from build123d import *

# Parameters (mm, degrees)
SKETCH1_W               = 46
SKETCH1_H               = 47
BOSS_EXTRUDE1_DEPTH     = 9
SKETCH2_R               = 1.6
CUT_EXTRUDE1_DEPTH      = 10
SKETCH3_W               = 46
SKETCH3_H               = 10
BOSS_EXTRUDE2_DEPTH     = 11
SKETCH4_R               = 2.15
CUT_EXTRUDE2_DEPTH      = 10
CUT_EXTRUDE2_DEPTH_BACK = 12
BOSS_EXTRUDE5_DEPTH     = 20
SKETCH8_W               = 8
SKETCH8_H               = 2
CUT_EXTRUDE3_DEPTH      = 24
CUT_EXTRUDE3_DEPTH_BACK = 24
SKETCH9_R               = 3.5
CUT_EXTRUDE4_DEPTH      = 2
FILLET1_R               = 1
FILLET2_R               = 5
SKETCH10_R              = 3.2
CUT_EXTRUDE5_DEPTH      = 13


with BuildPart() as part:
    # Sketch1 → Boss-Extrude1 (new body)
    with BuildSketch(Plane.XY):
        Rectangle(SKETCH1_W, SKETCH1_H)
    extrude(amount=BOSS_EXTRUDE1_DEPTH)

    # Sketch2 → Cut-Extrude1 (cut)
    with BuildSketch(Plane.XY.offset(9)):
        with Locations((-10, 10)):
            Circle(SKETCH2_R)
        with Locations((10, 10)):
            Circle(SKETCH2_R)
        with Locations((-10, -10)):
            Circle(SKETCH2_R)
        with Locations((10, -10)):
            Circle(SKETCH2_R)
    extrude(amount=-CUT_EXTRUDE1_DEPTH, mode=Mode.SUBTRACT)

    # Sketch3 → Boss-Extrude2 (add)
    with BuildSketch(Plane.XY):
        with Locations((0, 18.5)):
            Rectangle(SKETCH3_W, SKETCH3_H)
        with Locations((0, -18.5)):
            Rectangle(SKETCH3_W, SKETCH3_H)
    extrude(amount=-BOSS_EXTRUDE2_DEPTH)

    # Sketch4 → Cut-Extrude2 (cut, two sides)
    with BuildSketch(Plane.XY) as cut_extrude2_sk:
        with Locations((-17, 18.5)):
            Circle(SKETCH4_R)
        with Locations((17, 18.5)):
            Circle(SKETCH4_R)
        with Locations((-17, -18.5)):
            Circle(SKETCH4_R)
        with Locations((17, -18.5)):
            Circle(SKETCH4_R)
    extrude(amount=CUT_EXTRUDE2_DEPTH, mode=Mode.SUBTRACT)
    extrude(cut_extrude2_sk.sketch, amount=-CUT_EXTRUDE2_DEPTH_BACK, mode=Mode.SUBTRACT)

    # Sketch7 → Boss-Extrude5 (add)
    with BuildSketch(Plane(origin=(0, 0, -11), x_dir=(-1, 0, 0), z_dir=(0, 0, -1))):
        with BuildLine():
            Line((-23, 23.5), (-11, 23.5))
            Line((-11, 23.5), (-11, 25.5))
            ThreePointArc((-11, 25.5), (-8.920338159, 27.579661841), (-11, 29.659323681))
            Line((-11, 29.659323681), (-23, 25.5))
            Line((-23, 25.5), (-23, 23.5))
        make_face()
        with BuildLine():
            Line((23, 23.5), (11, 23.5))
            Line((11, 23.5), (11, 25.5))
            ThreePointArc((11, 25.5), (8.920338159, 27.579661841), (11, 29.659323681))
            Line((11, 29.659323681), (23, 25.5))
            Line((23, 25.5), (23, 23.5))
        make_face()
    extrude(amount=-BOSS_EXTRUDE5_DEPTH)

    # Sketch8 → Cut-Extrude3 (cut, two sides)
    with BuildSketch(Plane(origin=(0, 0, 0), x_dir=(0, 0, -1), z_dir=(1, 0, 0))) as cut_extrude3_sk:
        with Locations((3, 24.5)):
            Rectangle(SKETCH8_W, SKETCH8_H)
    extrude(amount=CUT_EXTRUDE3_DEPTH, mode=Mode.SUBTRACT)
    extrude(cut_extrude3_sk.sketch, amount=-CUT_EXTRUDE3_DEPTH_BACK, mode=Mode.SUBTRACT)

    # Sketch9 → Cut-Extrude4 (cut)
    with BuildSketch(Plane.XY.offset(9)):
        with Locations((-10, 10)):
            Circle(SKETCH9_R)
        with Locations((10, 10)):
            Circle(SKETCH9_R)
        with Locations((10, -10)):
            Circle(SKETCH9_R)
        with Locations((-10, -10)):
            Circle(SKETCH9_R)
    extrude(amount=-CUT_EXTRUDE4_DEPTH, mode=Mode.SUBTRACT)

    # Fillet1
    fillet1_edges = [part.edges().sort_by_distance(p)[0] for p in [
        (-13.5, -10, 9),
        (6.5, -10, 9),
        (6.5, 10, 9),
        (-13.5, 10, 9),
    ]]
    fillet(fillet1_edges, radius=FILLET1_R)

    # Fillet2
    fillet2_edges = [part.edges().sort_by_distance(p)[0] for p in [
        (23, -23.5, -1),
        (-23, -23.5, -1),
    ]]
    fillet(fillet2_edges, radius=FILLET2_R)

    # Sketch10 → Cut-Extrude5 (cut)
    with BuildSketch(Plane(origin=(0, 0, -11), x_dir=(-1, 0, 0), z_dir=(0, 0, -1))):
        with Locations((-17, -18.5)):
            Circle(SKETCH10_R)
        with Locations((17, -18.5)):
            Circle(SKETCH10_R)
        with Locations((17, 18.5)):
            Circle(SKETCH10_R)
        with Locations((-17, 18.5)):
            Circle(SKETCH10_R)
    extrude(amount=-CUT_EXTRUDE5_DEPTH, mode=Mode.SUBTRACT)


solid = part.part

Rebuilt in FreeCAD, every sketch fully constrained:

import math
import FreeCAD as App
import Part
import Sketcher

V = App.Vector


def edges_at(feature, points):
    """Names of the edges that pass closest to the given points."""
    edges = feature.Shape.Edges
    near = lambda p: min(range(len(edges)), key=lambda i: edges[i].distToShape(Part.Vertex(*p))[0])
    return sorted({f"Edge{near(p) + 1}" for p in points})


def add_polygon(sketch, points):
    """Adds a closed chain of lines whose ends are joined by coincident constraints."""
    first, n = sketch.GeometryCount, len(points)
    for a, b in zip(points, points[1:] + points[:1]):
        sketch.addGeometry(Part.LineSegment(App.Vector(*a, 0), App.Vector(*b, 0)), False)
    for i in range(n):
        sketch.addConstraint(Sketcher.Constraint("Coincident", first + i, 2, first + (i + 1) % n, 1))

doc = App.newDocument("Part")
body = doc.addObject("PartDesign::Body", "Body")

sketch1 = body.newObject("Sketcher::SketchObject", "Sketch")
sketch1.AttachmentSupport = (doc.getObject("XY_Plane"), [""])
sketch1.MapMode = "FlatFace"
add_polygon(sketch1, [(-23, 24), (-23, -24), (23, -24), (23, 24)])
sketch1.addConstraint(Sketcher.Constraint("Vertical", 0))
sketch1.addConstraint(Sketcher.Constraint("Horizontal", 1))
sketch1.addConstraint(Sketcher.Constraint("Vertical", 2))
sketch1.addConstraint(Sketcher.Constraint("Horizontal", 3))
sketch1.addConstraint(Sketcher.Constraint("Symmetric", 0, 2, 2, 2, -1, 1))
sketch1.addConstraint(Sketcher.Constraint("DistanceX", 1, 1, 1, 2, 46.0))
sketch1.addConstraint(Sketcher.Constraint("DistanceY", 0, 2, 0, 1, 47.0))
pad1 = body.newObject("PartDesign::Pad", "Pad")
pad1.Profile = sketch1
pad1.Length = 9

sketch2 = body.newObject("Sketcher::SketchObject", "Sketch001")
sketch2.AttachmentSupport = (doc.getObject("XY_Plane"), [""])
sketch2.MapMode = "FlatFace"
sketch2.AttachmentOffset = App.Placement(V(0, 0, 9), App.Rotation())
sketch2.addGeometry(Part.Circle(V(-10, 10, 0), V(0, 0, 1), 1.6), False)
sketch2.addGeometry(Part.Circle(V(10, 10, 0), V(0, 0, 1), 1.6), False)
sketch2.addGeometry(Part.Circle(V(-10, -10, 0), V(0, 0, 1), 1.6), False)
sketch2.addGeometry(Part.Circle(V(10, -10, 0), V(0, 0, 1), 1.6), False)
sketch2.addConstraint(Sketcher.Constraint("Equal", 0, 1))
sketch2.addConstraint(Sketcher.Constraint("Equal", 1, 2))
sketch2.addConstraint(Sketcher.Constraint("Equal", 2, 3))
sketch2.addConstraint(Sketcher.Constraint("Symmetric", 1, 3, 2, 3, -1, 1))
sketch2.addConstraint(Sketcher.Constraint("Symmetric", 0, 3, 3, 3, -1, 1))
sketch2.addConstraint(Sketcher.Constraint("Symmetric", 0, 3, 1, 3, -2))
sketch2.addConstraint(Sketcher.Constraint("Diameter", 0, 3.2))
sketch2.addConstraint(Sketcher.Constraint("DistanceX", 0, 3, -1, 1, 10.0))
sketch2.addConstraint(Sketcher.Constraint("DistanceY", -1, 1, 0, 3, 10.0))
pocket1 = body.newObject("PartDesign::Pocket", "Pocket")
pocket1.Profile = sketch2
pocket1.Length = 10

sketch3 = body.newObject("Sketcher::SketchObject", "Sketch002")
sketch3.AttachmentSupport = (doc.getObject("XY_Plane"), [""])
sketch3.MapMode = "FlatFace"
add_polygon(sketch3, [(-23, 24), (-23, 14), (23, 14), (23, 24)])
add_polygon(sketch3, [(-23, -14), (-23, -24), (23, -24), (23, -14)])
sketch3.addConstraint(Sketcher.Constraint("Vertical", 0))
sketch3.addConstraint(Sketcher.Constraint("Horizontal", 1))
sketch3.addConstraint(Sketcher.Constraint("Vertical", 2))
sketch3.addConstraint(Sketcher.Constraint("Horizontal", 3))
sketch3.addConstraint(Sketcher.Constraint("Vertical", 4))
sketch3.addConstraint(Sketcher.Constraint("Horizontal", 5))
sketch3.addConstraint(Sketcher.Constraint("Vertical", 6))
sketch3.addConstraint(Sketcher.Constraint("Horizontal", 7))
sketch3.addConstraint(Sketcher.Constraint("Symmetric", 2, 2, 4, 2, -1, 1))
sketch3.addConstraint(Sketcher.Constraint("Symmetric", 0, 2, 6, 2, -1, 1))
sketch3.addConstraint(Sketcher.Constraint("Vertical", 3, 2, 4, 2))
sketch3.addConstraint(Sketcher.Constraint("DistanceX", 1, 1, 1, 2, 46.0))
sketch3.addConstraint(Sketcher.Constraint("DistanceY", 0, 2, 0, 1, 10.0))
sketch3.addConstraint(Sketcher.Constraint("DistanceY", 4, 2, 0, 2, 37.0))
pad2 = body.newObject("PartDesign::Pad", "Pad001")
pad2.Profile = sketch3
pad2.Length = 11
pad2.Reversed = True

sketch4 = body.newObject("Sketcher::SketchObject", "Sketch003")
sketch4.AttachmentSupport = (doc.getObject("XY_Plane"), [""])
sketch4.MapMode = "FlatFace"
sketch4.addGeometry(Part.Circle(V(-17, 18.5, 0), V(0, 0, 1), 2.1), False)
sketch4.addGeometry(Part.Circle(V(17, 18.5, 0), V(0, 0, 1), 2.1), False)
sketch4.addGeometry(Part.Circle(V(-17, -18.5, 0), V(0, 0, 1), 2.1), False)
sketch4.addGeometry(Part.Circle(V(17, -18.5, 0), V(0, 0, 1), 2.1), False)
sketch4.addConstraint(Sketcher.Constraint("Equal", 0, 1))
sketch4.addConstraint(Sketcher.Constraint("Equal", 1, 2))
sketch4.addConstraint(Sketcher.Constraint("Equal", 2, 3))
sketch4.addConstraint(Sketcher.Constraint("Symmetric", 1, 3, 2, 3, -1, 1))
sketch4.addConstraint(Sketcher.Constraint("Symmetric", 0, 3, 3, 3, -1, 1))
sketch4.addConstraint(Sketcher.Constraint("Symmetric", 0, 3, 1, 3, -2))
sketch4.addConstraint(Sketcher.Constraint("Diameter", 0, 4.3))
sketch4.addConstraint(Sketcher.Constraint("DistanceX", 0, 3, -1, 1, 17.0))
sketch4.addConstraint(Sketcher.Constraint("DistanceY", 2, 3, 0, 3, 37.0))
pocket2 = body.newObject("PartDesign::Pocket", "Pocket001")
pocket2.Profile = sketch4
pocket2.Type = "ThroughAll"
pocket2.Midplane = True

sketch5 = body.newObject("Sketcher::SketchObject", "Sketch004")
sketch5.AttachmentSupport = (doc.getObject("XY_Plane"), [""])
sketch5.MapMode = "FlatFace"
sketch5.AttachmentOffset = App.Placement(V(0, 0, -11), App.Rotation())
sketch5.addGeometry(Part.LineSegment(V(23, 23.5, 0), V(11, 23.5, 0)), False)
sketch5.addGeometry(Part.LineSegment(V(11, 23.5, 0), V(11, 25.5, 0)), False)
sketch5.addGeometry(Part.ArcOfCircle(Part.Circle(V(11, 27.6, 0), V(0, 0, 1), 2.1), math.radians(90), math.radians(270)), False)
sketch5.addGeometry(Part.LineSegment(V(11, 29.7, 0), V(23, 25.5, 0)), False)
sketch5.addGeometry(Part.LineSegment(V(23, 25.5, 0), V(23, 23.5, 0)), False)
sketch5.addGeometry(Part.LineSegment(V(-11, 23.5, 0), V(-23, 23.5, 0)), False)
sketch5.addGeometry(Part.LineSegment(V(-23, 23.5, 0), V(-23, 25.5, 0)), False)
sketch5.addGeometry(Part.LineSegment(V(-23, 25.5, 0), V(-11, 29.7, 0)), False)
sketch5.addGeometry(Part.ArcOfCircle(Part.Circle(V(-11, 27.6, 0), V(0, 0, 1), 2.1), math.radians(-90), math.radians(90)), False)
sketch5.addGeometry(Part.LineSegment(V(-11, 25.5, 0), V(-11, 23.5, 0)), False)
sketch5.addConstraint(Sketcher.Constraint("Coincident", 0, 2, 1, 1))
sketch5.addConstraint(Sketcher.Constraint("Coincident", 1, 2, 2, 2))
sketch5.addConstraint(Sketcher.Constraint("Coincident", 2, 1, 3, 1))
sketch5.addConstraint(Sketcher.Constraint("Coincident", 3, 2, 4, 1))
sketch5.addConstraint(Sketcher.Constraint("Coincident", 4, 2, 0, 1))
sketch5.addConstraint(Sketcher.Constraint("Coincident", 5, 2, 6, 1))
sketch5.addConstraint(Sketcher.Constraint("Coincident", 6, 2, 7, 1))
sketch5.addConstraint(Sketcher.Constraint("Coincident", 7, 2, 8, 2))
sketch5.addConstraint(Sketcher.Constraint("Coincident", 8, 1, 9, 1))
sketch5.addConstraint(Sketcher.Constraint("Coincident", 9, 2, 5, 1))
sketch5.addConstraint(Sketcher.Constraint("Horizontal", 0))
sketch5.addConstraint(Sketcher.Constraint("Vertical", 1))
sketch5.addConstraint(Sketcher.Constraint("Vertical", 4))
sketch5.addConstraint(Sketcher.Constraint("Horizontal", 5))
sketch5.addConstraint(Sketcher.Constraint("Vertical", 6))
sketch5.addConstraint(Sketcher.Constraint("Vertical", 9))
sketch5.addConstraint(Sketcher.Constraint("Equal", 2, 8))
sketch5.addConstraint(Sketcher.Constraint("Symmetric", 2, 3, 8, 3, -2))
sketch5.addConstraint(Sketcher.Constraint("Symmetric", 4, 2, 5, 2, -2))
sketch5.addConstraint(Sketcher.Constraint("Horizontal", 1, 2, 3, 2))
sketch5.addConstraint(Sketcher.Constraint("Horizontal", 3, 2, 6, 2))
sketch5.addConstraint(Sketcher.Constraint("Vertical", 2, 3, 0, 2))
sketch5.addConstraint(Sketcher.Constraint("Vertical", 1, 2, 2, 1))
sketch5.addConstraint(Sketcher.Constraint("Vertical", 8, 3, 7, 2))
sketch5.addConstraint(Sketcher.Constraint("Vertical", 7, 2, 8, 1))
sketch5.addConstraint(Sketcher.Constraint("DistanceX", 0, 2, 0, 1, 12.0))
sketch5.addConstraint(Sketcher.Constraint("DistanceY", 1, 1, 1, 2, 2.0))
sketch5.addConstraint(Sketcher.Constraint("DistanceX", -1, 1, 2, 3, 11.0))
sketch5.addConstraint(Sketcher.Constraint("DistanceY", -1, 1, 0, 2, 23.5))
sketch5.addConstraint(Sketcher.Constraint("Radius", 2, 2.079662))
pad3 = body.newObject("PartDesign::Pad", "Pad002")
pad3.Profile = sketch5
pad3.Length = 20

sketch6 = body.newObject("Sketcher::SketchObject", "Sketch005")
sketch6.AttachmentSupport = (doc.getObject("YZ_Plane"), [""])
sketch6.MapMode = "FlatFace"
add_polygon(sketch6, [(25.5, 1), (23.5, 1), (23.5, -7), (25.5, -7)])
sketch6.addConstraint(Sketcher.Constraint("Horizontal", 0))
sketch6.addConstraint(Sketcher.Constraint("Vertical", 1))
sketch6.addConstraint(Sketcher.Constraint("Horizontal", 2))
sketch6.addConstraint(Sketcher.Constraint("Vertical", 3))
sketch6.addConstraint(Sketcher.Constraint("DistanceX", 0, 2, 0, 1, 2.0))
sketch6.addConstraint(Sketcher.Constraint("DistanceY", 1, 2, 1, 1, 8.0))
sketch6.addConstraint(Sketcher.Constraint("DistanceY", -1, 1, 0, 2, 1.0))
sketch6.addConstraint(Sketcher.Constraint("DistanceX", -1, 1, 0, 2, 23.5))
pocket3 = body.newObject("PartDesign::Pocket", "Pocket002")
pocket3.Profile = sketch6
pocket3.Type = "ThroughAll"
pocket3.Midplane = True

sketch7 = body.newObject("Sketcher::SketchObject", "Sketch006")
sketch7.AttachmentSupport = (doc.getObject("XY_Plane"), [""])
sketch7.MapMode = "FlatFace"
sketch7.AttachmentOffset = App.Placement(V(0, 0, 9), App.Rotation())
sketch7.addGeometry(Part.Circle(V(-10, 10, 0), V(0, 0, 1), 3.5), False)
sketch7.addGeometry(Part.Circle(V(10, 10, 0), V(0, 0, 1), 3.5), False)
sketch7.addGeometry(Part.Circle(V(10, -10, 0), V(0, 0, 1), 3.5), False)
sketch7.addGeometry(Part.Circle(V(-10, -10, 0), V(0, 0, 1), 3.5), False)
sketch7.addConstraint(Sketcher.Constraint("Equal", 0, 1))
sketch7.addConstraint(Sketcher.Constraint("Equal", 1, 2))
sketch7.addConstraint(Sketcher.Constraint("Equal", 2, 3))
sketch7.addConstraint(Sketcher.Constraint("Symmetric", 0, 3, 2, 3, -1, 1))
sketch7.addConstraint(Sketcher.Constraint("Symmetric", 1, 3, 3, 3, -1, 1))
sketch7.addConstraint(Sketcher.Constraint("Symmetric", 0, 3, 1, 3, -2))
sketch7.addConstraint(Sketcher.Constraint("Diameter", 0, 7.0))
sketch7.addConstraint(Sketcher.Constraint("DistanceX", 0, 3, -1, 1, 10.0))
sketch7.addConstraint(Sketcher.Constraint("DistanceY", -1, 1, 0, 3, 10.0))
pocket4 = body.newObject("PartDesign::Pocket", "Pocket003")
pocket4.Profile = sketch7
pocket4.Length = 2
doc.recompute()

fillet = body.newObject("PartDesign::Fillet", "Fillet")
fillet.Base = (pocket4, edges_at(pocket4, [
    (-13.5, -10, 9),
    (6.5, -10, 9),
    (6.5, 10, 9),
    (-13.5, 10, 9),
]))
fillet.Radius = 1
doc.recompute()

fillet2 = body.newObject("PartDesign::Fillet", "Fillet001")
fillet2.Base = (fillet, edges_at(fillet, [(23, -23.5, -1), (-23, -23.5, -1)]))
fillet2.Radius = 5

sketch8 = body.newObject("Sketcher::SketchObject", "Sketch007")
sketch8.AttachmentSupport = (doc.getObject("XY_Plane"), [""])
sketch8.MapMode = "FlatFace"
sketch8.AttachmentOffset = App.Placement(V(0, 0, -11), App.Rotation())
sketch8.addGeometry(Part.Circle(V(17, -18.5, 0), V(0, 0, 1), 3.2), False)
sketch8.addGeometry(Part.Circle(V(-17, -18.5, 0), V(0, 0, 1), 3.2), False)
sketch8.addGeometry(Part.Circle(V(-17, 18.5, 0), V(0, 0, 1), 3.2), False)
sketch8.addGeometry(Part.Circle(V(17, 18.5, 0), V(0, 0, 1), 3.2), False)
sketch8.addConstraint(Sketcher.Constraint("Equal", 0, 1))
sketch8.addConstraint(Sketcher.Constraint("Equal", 1, 2))
sketch8.addConstraint(Sketcher.Constraint("Equal", 2, 3))
sketch8.addConstraint(Sketcher.Constraint("Symmetric", 0, 3, 2, 3, -1, 1))
sketch8.addConstraint(Sketcher.Constraint("Symmetric", 1, 3, 3, 3, -1, 1))
sketch8.addConstraint(Sketcher.Constraint("Symmetric", 0, 3, 1, 3, -2))
sketch8.addConstraint(Sketcher.Constraint("Diameter", 0, 6.4))
sketch8.addConstraint(Sketcher.Constraint("DistanceX", -1, 1, 0, 3, 17.0))
sketch8.addConstraint(Sketcher.Constraint("DistanceY", 1, 3, 2, 3, 37.0))
pocket5 = body.newObject("PartDesign::Pocket", "Pocket004")
pocket5.Profile = sketch8
pocket5.Length = 13
pocket5.Reversed = True

doc.recompute()
